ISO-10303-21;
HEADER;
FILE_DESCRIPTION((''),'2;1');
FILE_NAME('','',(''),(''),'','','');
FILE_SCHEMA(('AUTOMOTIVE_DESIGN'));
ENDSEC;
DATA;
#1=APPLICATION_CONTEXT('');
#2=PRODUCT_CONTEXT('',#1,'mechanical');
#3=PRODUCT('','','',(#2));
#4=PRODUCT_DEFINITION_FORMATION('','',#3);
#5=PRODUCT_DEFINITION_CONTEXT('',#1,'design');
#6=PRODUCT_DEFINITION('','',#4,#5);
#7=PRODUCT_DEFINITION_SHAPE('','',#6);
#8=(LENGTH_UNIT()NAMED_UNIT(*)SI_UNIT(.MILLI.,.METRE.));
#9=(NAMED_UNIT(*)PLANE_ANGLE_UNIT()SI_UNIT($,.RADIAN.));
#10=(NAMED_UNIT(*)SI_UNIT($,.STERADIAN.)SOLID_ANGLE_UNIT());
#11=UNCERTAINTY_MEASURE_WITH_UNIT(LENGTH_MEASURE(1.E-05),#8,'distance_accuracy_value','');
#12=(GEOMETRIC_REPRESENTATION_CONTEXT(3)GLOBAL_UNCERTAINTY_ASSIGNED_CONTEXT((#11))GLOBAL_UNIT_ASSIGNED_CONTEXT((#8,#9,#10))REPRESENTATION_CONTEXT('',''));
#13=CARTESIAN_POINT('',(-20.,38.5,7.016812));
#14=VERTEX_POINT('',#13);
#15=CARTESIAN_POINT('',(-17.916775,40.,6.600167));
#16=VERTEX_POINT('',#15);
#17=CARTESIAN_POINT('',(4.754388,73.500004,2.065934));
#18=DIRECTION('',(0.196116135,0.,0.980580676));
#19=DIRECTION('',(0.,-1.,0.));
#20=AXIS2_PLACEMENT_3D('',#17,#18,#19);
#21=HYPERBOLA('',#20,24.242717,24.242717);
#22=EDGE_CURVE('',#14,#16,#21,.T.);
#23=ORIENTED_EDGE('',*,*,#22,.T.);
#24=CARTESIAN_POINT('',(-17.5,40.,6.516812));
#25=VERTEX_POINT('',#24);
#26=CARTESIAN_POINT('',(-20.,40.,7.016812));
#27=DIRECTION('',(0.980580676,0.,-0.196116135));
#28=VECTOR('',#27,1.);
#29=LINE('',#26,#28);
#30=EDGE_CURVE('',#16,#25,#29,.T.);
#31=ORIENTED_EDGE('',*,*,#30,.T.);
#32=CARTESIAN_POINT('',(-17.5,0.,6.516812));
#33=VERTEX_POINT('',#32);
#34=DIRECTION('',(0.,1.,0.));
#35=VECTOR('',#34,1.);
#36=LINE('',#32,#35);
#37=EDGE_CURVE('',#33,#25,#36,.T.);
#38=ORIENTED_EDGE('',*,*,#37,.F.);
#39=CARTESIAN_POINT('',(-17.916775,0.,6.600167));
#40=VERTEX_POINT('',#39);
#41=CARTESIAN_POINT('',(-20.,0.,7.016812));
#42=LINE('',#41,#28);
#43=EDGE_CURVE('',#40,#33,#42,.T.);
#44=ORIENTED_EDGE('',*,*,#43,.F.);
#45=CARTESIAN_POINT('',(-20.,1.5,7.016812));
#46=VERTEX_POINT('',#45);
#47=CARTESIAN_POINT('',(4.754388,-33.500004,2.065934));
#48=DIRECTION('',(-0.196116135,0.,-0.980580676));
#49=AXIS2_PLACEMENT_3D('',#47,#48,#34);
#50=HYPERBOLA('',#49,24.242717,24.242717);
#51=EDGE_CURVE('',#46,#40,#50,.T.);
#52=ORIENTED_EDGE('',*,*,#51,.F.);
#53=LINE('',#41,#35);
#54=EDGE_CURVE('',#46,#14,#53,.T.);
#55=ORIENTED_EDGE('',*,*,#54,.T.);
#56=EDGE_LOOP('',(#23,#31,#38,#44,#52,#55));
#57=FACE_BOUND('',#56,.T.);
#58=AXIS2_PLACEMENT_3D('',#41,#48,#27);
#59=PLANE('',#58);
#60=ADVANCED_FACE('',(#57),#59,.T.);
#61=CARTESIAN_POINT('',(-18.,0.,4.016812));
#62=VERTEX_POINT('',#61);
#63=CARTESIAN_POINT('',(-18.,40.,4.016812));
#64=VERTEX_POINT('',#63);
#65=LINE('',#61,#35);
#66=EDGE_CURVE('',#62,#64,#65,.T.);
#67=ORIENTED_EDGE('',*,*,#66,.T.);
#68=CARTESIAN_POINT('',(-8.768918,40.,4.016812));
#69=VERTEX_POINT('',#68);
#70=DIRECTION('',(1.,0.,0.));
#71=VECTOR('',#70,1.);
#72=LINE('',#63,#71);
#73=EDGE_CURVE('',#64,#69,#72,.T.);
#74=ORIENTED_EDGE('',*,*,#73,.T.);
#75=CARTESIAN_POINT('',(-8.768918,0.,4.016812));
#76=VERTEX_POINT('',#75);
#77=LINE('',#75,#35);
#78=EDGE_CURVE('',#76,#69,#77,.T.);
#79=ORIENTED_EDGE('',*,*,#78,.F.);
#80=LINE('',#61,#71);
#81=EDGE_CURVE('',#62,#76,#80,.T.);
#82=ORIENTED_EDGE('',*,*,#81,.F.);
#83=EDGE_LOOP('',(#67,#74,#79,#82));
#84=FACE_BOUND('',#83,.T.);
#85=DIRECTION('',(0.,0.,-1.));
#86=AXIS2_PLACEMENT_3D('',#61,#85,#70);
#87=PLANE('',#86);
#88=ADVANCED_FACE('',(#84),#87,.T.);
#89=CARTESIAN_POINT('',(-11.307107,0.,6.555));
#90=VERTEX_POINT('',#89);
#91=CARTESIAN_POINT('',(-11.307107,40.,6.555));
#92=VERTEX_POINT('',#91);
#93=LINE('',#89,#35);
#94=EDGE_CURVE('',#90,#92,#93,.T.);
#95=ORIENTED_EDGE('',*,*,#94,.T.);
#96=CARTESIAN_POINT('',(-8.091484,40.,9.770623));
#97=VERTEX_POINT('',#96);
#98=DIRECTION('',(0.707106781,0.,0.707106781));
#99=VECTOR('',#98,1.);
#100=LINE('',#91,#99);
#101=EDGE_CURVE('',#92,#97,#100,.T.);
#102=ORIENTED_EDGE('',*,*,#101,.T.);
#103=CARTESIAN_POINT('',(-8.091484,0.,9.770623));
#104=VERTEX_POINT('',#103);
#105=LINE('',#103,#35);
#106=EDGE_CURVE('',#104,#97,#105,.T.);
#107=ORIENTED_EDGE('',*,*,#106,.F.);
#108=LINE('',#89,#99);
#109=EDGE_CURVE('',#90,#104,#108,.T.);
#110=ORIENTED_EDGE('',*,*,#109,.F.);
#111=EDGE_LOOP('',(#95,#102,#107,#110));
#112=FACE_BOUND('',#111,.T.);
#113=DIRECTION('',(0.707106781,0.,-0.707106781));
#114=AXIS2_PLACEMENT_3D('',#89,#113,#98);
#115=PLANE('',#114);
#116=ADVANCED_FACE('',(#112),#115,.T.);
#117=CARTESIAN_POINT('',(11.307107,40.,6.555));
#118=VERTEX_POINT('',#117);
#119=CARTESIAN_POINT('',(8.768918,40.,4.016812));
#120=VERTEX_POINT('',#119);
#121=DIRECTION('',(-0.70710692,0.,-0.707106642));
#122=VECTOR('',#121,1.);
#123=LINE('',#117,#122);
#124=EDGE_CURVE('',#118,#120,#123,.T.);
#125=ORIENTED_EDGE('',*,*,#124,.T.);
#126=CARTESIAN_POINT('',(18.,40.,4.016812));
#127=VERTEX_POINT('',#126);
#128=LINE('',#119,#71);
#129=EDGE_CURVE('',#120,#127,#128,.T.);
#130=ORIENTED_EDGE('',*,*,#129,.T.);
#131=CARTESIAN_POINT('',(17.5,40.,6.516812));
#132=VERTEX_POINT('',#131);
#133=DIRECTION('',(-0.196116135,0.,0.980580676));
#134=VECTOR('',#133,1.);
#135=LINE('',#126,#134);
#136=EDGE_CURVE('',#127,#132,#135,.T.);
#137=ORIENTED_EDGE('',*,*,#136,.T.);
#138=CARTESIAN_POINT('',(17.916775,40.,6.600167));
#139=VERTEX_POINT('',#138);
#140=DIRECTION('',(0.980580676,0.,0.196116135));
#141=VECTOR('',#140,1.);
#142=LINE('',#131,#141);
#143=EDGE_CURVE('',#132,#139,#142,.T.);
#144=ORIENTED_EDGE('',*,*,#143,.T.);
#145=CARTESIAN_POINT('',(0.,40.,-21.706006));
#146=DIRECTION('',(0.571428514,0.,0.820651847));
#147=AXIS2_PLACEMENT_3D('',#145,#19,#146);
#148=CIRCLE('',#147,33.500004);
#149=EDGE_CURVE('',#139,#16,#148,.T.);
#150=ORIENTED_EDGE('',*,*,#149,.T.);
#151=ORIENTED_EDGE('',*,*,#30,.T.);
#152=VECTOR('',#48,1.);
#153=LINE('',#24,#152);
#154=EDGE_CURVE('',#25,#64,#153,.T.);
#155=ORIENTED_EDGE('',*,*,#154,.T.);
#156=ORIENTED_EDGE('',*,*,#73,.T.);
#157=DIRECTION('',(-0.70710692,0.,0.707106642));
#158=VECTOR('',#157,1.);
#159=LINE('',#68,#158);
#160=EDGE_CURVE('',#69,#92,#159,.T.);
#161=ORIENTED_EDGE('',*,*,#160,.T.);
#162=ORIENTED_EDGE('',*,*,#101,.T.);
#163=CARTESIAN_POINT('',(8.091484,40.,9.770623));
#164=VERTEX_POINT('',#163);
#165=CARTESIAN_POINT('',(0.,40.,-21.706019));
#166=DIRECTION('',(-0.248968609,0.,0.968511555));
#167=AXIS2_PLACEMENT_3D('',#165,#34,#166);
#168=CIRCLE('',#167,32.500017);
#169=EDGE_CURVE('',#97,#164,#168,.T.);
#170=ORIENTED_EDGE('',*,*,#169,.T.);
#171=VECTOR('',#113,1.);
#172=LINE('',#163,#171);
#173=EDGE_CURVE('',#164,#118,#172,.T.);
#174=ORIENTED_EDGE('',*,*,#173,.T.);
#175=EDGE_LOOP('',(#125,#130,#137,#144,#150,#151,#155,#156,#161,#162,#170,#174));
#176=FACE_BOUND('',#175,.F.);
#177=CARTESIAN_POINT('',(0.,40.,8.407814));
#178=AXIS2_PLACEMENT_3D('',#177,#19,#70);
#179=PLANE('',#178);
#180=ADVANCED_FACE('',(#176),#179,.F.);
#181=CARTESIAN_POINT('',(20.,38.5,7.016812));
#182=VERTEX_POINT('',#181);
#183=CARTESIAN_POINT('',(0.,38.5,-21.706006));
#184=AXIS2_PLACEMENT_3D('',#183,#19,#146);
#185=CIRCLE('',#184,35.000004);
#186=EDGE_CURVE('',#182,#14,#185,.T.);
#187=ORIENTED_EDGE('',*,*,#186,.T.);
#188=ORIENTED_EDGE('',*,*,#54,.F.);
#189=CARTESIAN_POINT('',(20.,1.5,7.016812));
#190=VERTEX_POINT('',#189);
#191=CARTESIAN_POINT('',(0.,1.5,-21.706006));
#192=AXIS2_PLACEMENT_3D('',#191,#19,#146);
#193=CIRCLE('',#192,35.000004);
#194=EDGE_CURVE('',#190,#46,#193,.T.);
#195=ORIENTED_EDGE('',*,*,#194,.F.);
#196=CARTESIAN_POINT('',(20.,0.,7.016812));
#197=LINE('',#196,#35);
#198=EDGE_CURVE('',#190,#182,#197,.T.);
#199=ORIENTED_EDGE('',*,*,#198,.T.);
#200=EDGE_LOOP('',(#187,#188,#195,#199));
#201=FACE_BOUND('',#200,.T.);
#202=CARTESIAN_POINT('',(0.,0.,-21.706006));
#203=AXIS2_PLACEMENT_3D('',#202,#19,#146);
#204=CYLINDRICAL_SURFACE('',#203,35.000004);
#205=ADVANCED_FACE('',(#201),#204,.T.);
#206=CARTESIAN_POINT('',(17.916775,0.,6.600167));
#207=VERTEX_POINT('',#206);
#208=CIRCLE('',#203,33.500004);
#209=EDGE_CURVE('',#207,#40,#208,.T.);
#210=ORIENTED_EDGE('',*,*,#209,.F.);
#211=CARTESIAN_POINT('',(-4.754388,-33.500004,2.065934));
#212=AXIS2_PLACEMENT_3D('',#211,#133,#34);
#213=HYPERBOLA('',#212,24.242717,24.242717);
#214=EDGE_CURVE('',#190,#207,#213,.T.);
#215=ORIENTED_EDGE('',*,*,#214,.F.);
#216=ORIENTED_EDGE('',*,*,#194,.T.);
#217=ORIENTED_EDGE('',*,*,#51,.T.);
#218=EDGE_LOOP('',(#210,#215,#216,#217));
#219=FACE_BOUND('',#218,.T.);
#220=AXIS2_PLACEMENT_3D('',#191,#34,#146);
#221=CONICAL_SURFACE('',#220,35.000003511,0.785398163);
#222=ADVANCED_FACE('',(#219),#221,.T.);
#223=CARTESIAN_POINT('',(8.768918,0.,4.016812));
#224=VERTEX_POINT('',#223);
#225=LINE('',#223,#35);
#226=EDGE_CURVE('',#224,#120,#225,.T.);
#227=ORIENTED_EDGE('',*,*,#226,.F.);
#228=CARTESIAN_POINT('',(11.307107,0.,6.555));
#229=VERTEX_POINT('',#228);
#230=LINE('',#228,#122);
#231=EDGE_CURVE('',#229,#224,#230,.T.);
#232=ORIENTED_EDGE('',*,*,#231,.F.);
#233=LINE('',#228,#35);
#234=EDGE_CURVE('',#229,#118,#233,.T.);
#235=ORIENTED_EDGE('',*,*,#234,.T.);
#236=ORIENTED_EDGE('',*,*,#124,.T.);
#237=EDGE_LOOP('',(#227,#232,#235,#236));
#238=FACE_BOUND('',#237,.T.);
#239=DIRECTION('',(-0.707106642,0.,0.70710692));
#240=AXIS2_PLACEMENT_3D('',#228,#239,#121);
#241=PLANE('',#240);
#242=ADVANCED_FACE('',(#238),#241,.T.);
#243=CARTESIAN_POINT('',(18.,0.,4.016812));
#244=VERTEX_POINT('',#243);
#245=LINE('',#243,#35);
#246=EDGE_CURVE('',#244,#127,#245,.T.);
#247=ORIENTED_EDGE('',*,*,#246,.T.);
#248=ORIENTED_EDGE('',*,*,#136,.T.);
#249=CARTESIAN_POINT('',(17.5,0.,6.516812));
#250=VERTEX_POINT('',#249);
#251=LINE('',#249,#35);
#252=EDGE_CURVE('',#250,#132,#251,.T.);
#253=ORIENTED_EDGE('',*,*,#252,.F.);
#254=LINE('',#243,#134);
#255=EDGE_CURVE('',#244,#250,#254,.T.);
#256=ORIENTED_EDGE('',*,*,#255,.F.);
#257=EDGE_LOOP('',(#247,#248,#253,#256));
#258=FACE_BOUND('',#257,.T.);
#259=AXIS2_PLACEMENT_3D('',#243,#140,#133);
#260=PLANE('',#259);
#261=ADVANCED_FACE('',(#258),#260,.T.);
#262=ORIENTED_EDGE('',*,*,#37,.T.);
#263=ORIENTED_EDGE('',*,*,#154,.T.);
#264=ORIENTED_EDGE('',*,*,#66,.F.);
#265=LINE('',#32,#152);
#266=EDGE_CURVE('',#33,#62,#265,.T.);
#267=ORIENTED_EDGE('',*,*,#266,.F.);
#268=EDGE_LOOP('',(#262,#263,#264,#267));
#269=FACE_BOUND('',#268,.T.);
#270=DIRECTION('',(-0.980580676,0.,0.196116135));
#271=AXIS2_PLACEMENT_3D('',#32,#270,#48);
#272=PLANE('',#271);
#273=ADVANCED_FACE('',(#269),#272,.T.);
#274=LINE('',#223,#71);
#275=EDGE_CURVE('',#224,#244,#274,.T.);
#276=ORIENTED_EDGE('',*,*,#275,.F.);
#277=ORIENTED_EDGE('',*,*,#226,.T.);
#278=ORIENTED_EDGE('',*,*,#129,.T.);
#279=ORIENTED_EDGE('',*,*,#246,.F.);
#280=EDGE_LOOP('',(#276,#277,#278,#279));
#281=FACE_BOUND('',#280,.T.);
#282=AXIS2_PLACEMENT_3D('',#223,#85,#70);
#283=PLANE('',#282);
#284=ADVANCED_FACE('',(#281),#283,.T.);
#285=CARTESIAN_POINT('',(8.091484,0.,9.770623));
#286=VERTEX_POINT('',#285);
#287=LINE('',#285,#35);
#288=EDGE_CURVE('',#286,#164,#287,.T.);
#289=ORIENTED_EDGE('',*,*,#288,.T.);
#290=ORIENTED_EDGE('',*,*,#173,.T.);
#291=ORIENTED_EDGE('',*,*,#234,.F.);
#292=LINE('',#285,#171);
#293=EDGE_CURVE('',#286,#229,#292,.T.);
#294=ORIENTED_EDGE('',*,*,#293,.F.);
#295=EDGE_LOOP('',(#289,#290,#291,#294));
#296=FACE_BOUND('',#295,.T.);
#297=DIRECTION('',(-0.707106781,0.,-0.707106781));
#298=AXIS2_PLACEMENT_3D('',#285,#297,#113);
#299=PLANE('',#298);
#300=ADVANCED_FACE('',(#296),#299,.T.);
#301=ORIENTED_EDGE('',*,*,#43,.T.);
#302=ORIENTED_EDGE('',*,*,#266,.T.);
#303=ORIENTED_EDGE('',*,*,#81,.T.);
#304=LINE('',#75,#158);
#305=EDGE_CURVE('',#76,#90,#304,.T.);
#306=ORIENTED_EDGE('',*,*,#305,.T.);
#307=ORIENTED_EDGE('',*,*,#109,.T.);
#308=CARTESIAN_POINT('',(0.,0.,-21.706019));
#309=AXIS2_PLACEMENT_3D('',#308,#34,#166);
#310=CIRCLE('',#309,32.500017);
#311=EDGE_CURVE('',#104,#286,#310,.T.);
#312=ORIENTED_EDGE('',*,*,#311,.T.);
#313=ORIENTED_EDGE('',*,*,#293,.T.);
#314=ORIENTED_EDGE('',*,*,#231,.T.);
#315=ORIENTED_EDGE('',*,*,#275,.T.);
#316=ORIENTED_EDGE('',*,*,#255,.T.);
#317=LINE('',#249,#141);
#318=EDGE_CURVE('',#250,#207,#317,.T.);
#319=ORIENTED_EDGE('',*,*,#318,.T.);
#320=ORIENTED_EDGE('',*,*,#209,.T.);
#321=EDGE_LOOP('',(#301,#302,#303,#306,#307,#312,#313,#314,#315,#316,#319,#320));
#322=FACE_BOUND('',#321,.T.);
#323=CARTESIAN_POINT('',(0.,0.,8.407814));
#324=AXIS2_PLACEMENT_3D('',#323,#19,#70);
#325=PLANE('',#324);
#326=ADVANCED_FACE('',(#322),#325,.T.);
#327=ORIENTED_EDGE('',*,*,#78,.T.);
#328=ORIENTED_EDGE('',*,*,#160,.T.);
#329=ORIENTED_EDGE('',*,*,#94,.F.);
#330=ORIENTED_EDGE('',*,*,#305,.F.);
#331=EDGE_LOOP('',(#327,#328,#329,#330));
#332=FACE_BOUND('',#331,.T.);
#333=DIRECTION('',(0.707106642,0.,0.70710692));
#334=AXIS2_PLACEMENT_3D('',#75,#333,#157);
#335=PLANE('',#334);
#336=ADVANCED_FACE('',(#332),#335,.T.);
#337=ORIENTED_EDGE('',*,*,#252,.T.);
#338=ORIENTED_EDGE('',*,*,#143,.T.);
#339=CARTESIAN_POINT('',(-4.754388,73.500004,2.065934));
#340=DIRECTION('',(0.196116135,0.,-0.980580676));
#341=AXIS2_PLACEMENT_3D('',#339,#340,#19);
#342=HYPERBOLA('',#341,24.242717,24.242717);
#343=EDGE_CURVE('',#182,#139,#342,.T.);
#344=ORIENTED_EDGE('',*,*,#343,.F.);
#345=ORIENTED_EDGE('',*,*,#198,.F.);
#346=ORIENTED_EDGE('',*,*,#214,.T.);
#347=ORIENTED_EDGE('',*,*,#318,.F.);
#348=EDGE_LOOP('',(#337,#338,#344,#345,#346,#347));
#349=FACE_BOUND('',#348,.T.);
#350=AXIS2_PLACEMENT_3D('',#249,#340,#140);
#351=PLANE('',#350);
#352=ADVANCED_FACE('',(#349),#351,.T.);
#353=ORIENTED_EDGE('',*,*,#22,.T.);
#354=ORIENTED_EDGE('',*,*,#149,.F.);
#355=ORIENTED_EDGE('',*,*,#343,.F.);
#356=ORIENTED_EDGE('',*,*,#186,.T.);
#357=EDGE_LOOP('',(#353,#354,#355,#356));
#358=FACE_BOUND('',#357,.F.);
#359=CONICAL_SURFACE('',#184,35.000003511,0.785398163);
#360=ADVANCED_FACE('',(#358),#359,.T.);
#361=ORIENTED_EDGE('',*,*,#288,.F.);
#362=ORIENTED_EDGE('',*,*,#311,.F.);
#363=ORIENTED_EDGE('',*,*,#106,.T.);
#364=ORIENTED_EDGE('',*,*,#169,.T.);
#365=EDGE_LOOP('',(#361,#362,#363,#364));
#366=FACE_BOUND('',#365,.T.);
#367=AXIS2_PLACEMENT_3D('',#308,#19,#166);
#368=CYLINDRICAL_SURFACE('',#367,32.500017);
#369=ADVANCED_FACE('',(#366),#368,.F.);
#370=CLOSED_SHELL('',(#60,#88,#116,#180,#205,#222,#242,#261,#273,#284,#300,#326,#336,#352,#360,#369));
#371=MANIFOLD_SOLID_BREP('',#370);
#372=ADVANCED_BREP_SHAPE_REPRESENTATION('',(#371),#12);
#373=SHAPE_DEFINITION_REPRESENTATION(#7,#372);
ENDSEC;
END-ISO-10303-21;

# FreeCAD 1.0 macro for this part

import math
import FreeCAD as App
import Part
import Sketcher

V = App.Vector


def edges_at(feature, points):
    """Names of the edges that pass closest to the given points."""
    edges = feature.Shape.Edges
    near = lambda p: min(range(len(edges)), key=lambda i: edges[i].distToShape(Part.Vertex(*p))[0])
    return sorted({f"Edge{near(p) + 1}" for p in points})

doc = App.newDocument("Part")
params = doc.addObject("Spreadsheet::Sheet", "Params")
for row, (alias, value) in enumerate([
    ("pad1_length", "40 mm"),
    ("chamfer_size", "1.5 mm"),
], start=1):
    params.set(f"A{row}", alias)
    params.set(f"B{row}", "=" + value)
    params.setAlias(f"B{row}", alias)

body = doc.addObject("PartDesign::Body", "Body")

# Sketch on XZ plane
sketch1 = body.newObject("Sketcher::SketchObject", "Sketch")
sketch1.AttachmentSupport = (doc.getObject("XZ_Plane"), [""])
sketch1.MapMode = "FlatFace"
sketch1.addGeometry(Part.LineSegment(V(11.3, 6.6, 0), V(8.8, 4, 0)), False)
sketch1.addGeometry(Part.LineSegment(V(8.8, 4, 0), V(18, 4, 0)), False)
sketch1.addGeometry(Part.LineSegment(V(18, 4, 0), V(17.5, 6.5, 0)), False)
sketch1.addGeometry(Part.LineSegment(V(17.5, 6.5, 0), V(20, 7, 0)), False)
sketch1.addGeometry(Part.ArcOfCircle(Part.Circle(V(0, -21.7, 0), V(0, 0, 1), 35), math.radians(55), math.radians(125)), False)
sketch1.addGeometry(Part.LineSegment(V(-20, 7, 0), V(-17.5, 6.5, 0)), False)
sketch1.addGeometry(Part.LineSegment(V(-17.5, 6.5, 0), V(-18, 4, 0)), False)
sketch1.addGeometry(Part.LineSegment(V(-18, 4, 0), V(-8.8, 4, 0)), False)
sketch1.addGeometry(Part.LineSegment(V(-8.8, 4, 0), V(-11.3, 6.6, 0)), False)
sketch1.addGeometry(Part.LineSegment(V(-11.3, 6.6, 0), V(-8.1, 9.8, 0)), False)
sketch1.addGeometry(Part.ArcOfCircle(Part.Circle(V(0, -21.7, 0), V(0, 0, 1), 32.5), math.radians(76), math.radians(104)), False)
sketch1.addGeometry(Part.LineSegment(V(8.1, 9.8, 0), V(11.3, 6.6, 0)), False)
sketch1.addConstraint(Sketcher.Constraint("Coincident", 0, 2, 1, 1))
sketch1.addConstraint(Sketcher.Constraint("Coincident", 1, 2, 2, 1))
sketch1.addConstraint(Sketcher.Constraint("Coincident", 2, 2, 3, 1))
sketch1.addConstraint(Sketcher.Constraint("Coincident", 3, 2, 4, 1))
sketch1.addConstraint(Sketcher.Constraint("Coincident", 4, 2, 5, 1))
sketch1.addConstraint(Sketcher.Constraint("Coincident", 5, 2, 6, 1))
sketch1.addConstraint(Sketcher.Constraint("Coincident", 6, 2, 7, 1))
sketch1.addConstraint(Sketcher.Constraint("Coincident", 7, 2, 8, 1))
sketch1.addConstraint(Sketcher.Constraint("Coincident", 8, 2, 9, 1))
sketch1.addConstraint(Sketcher.Constraint("Coincident", 9, 2, 10, 2))
sketch1.addConstraint(Sketcher.Constraint("Coincident", 10, 1, 11, 1))
sketch1.addConstraint(Sketcher.Constraint("Coincident", 11, 2, 0, 1))
sketch1.addConstraint(Sketcher.Constraint("Horizontal", 1))
sketch1.addConstraint(Sketcher.Constraint("Horizontal", 7))
sketch1.addConstraint(Sketcher.Constraint("Symmetric", 3, 2, 4, 2, -2))
sketch1.addConstraint(Sketcher.Constraint("Symmetric", 2, 2, 5, 2, -2))
sketch1.addConstraint(Sketcher.Constraint("Symmetric", 1, 2, 6, 2, -2))
sketch1.addConstraint(Sketcher.Constraint("Symmetric", 9, 2, 10, 1, -2))
sketch1.addConstraint(Sketcher.Constraint("Symmetric", 8, 2, 11, 2, -2))
sketch1.addConstraint(Sketcher.Constraint("Perpendicular", 2, 3))
sketch1.addConstraint(Sketcher.Constraint("Perpendicular", 0, 8))
sketch1.addConstraint(Sketcher.Constraint("Perpendicular", 8, 9))
sketch1.addConstraint(Sketcher.Constraint("Perpendicular", 9, 11))
sketch1.addConstraint(Sketcher.Constraint("Equal", 2, 3))
sketch1.addConstraint(Sketcher.Constraint("DistanceX", -1, 1, 1, 2, 18.0))
sketch1.addConstraint(Sketcher.Constraint("DistanceX", -1, 1, 3, 2, 20.0))
sketch1.addConstraint(Sketcher.Constraint("DistanceY", 1, 2, 3, 2, 3.0))
sketch1.addConstraint(Sketcher.Constraint("DistanceY", -1, 1, 8, 2, 6.555))
sketch1.addConstraint(Sketcher.Constraint("Radius", 4, 35.000004))
sketch1.addConstraint(Sketcher.Constraint("Radius", 10, 32.500017))
sketch1.addConstraint(Sketcher.Constraint("Distance", 0, 3.589541))
sketch1.addConstraint(Sketcher.Constraint("DistanceX", 1, 1, 1, 2, 9.231082))
sketch1.addConstraint(Sketcher.Constraint("DistanceY", 10, 3, -1, 1, 21.706019))
pad1 = body.newObject("PartDesign::Pad", "Pad")
pad1.Profile = sketch1
pad1.setExpression("Length", "Params.pad1_length")
pad1.Reversed = True
doc.recompute()

chamfer = body.newObject("PartDesign::Chamfer", "Chamfer")
chamfer.Base = (pad1, edges_at(pad1, [(0, 0, 13.294), (0, 40, 13.294)]))
chamfer.setExpression("Size", "Params.chamfer_size")

doc.recompute()
